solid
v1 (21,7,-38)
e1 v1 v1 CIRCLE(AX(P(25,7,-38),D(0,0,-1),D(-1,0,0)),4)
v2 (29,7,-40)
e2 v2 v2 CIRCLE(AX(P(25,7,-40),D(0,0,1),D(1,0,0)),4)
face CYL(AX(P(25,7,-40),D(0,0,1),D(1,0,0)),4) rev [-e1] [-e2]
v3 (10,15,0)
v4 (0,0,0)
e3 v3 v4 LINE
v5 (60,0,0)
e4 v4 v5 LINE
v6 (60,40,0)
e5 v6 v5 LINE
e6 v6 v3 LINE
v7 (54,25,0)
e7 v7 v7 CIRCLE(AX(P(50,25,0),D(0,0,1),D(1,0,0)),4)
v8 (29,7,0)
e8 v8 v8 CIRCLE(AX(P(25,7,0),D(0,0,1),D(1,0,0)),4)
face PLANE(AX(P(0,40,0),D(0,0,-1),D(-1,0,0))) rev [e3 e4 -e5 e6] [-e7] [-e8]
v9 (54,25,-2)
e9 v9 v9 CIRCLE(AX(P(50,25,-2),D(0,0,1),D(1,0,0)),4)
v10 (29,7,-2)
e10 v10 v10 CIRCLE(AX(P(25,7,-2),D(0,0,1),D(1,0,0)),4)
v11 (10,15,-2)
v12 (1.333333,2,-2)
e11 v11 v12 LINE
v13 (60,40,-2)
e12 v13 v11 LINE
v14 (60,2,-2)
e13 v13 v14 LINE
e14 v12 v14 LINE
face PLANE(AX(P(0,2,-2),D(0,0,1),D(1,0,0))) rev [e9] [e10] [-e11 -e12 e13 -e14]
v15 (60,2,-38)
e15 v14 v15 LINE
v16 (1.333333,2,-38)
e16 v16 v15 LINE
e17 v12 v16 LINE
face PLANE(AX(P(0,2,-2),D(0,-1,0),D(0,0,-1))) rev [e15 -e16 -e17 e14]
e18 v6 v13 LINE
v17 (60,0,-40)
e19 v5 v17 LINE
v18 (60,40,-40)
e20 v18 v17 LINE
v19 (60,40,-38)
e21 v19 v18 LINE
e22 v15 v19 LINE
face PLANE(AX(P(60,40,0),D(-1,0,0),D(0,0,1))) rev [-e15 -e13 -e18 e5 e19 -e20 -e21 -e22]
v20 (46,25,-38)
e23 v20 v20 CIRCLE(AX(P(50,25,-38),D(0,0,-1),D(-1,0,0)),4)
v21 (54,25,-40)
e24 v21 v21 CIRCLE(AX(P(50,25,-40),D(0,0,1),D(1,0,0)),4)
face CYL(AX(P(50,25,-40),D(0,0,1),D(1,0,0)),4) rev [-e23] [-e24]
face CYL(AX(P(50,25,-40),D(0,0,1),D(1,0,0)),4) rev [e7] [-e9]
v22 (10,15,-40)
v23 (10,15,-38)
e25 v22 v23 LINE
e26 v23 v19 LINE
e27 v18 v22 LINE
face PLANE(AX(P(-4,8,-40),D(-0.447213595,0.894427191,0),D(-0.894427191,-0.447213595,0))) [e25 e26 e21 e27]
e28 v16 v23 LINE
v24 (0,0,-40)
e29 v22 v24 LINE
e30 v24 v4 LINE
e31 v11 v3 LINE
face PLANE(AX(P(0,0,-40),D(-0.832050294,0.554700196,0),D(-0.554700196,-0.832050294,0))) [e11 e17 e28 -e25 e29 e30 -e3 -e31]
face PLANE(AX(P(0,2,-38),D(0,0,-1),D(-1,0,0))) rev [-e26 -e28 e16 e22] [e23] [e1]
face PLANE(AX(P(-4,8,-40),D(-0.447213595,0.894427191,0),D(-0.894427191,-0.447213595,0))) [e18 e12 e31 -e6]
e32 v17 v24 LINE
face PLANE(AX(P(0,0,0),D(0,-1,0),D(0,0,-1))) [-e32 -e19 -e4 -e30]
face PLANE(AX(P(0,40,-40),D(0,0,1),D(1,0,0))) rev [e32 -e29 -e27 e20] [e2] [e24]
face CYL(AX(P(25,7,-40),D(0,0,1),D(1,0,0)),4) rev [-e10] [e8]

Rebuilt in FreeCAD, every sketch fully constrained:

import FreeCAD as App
import Part
import Sketcher


def add_polygon(sketch, points):
    """Adds a closed chain of lines whose ends are joined by coincident constraints."""
    first, n = sketch.GeometryCount, len(points)
    for a, b in zip(points, points[1:] + points[:1]):
        sketch.addGeometry(Part.LineSegment(App.Vector(*a, 0), App.Vector(*b, 0)), False)
    for i in range(n):
        sketch.addConstraint(Sketcher.Constraint("Coincident", first + i, 2, first + (i + 1) % n, 1))

doc = App.newDocument("Part")
body = doc.addObject("PartDesign::Body", "Body")

# Sketch on XZ plane
sketch1 = doc.addObject("Sketcher::SketchObject", "Sketch")
body.addObject(sketch1)
sketch1.AttachmentSupport = (doc.XZ_Plane, [""])
sketch1.MapMode = "FlatFace"
add_polygon(sketch1, [(0, -40), (0, 0), (60, 0), (60, -40)])  # lines 0-3
sketch1.addConstraint(Sketcher.Constraint("Vertical", 0))
sketch1.addConstraint(Sketcher.Constraint("Horizontal", 1))
sketch1.addConstraint(Sketcher.Constraint("Vertical", 2))
sketch1.addConstraint(Sketcher.Constraint("Horizontal", 3))
sketch1.addConstraint(Sketcher.Constraint("Coincident", 0, 2, -1, 1))
sketch1.addConstraint(Sketcher.Constraint("DistanceX", 1, 1, 1, 2, 60.0))
sketch1.addConstraint(Sketcher.Constraint("DistanceY", 0, 1, 0, 2, 40.0))
pad1 = doc.addObject("PartDesign::Pad", "Pad")
body.addObject(pad1)
pad1.Profile = sketch1
pad1.Length = 40
pad1.Reversed = True

# Sketch on YZ plane
sketch2 = doc.addObject("Sketcher::SketchObject", "Sketch001")
body.addObject(sketch2)
sketch2.AttachmentSupport = (doc.YZ_Plane, [""])
sketch2.MapMode = "FlatFace"
sketch2.AttachmentOffset = App.Placement(App.Vector(0, 0, 60), App.Rotation())
add_polygon(sketch2, [(40, -2), (2, -2), (2, -38), (40, -38)])  # lines 0-3
sketch2.addConstraint(Sketcher.Constraint("Horizontal", 0))
sketch2.addConstraint(Sketcher.Constraint("Vertical", 1))
sketch2.addConstraint(Sketcher.Constraint("Horizontal", 2))
sketch2.addConstraint(Sketcher.Constraint("Vertical", 3))
sketch2.addConstraint(Sketcher.Constraint("DistanceX", 0, 2, 0, 1, 38.0))
sketch2.addConstraint(Sketcher.Constraint("DistanceY", 1, 2, 1, 1, 36.0))
sketch2.addConstraint(Sketcher.Constraint("DistanceX", -1, 1, 0, 2, 2.0))
sketch2.addConstraint(Sketcher.Constraint("DistanceY", 0, 2, -1, 1, 2.0))
pocket1 = doc.addObject("PartDesign::Pocket", "Pocket")
body.addObject(pocket1)
pocket1.Profile = sketch2
pocket1.Type = "ThroughAll"

# Sketch on XY plane
sketch3 = doc.addObject("Sketcher::SketchObject", "Sketch002")
body.addObject(sketch3)
sketch3.AttachmentSupport = (doc.XY_Plane, [""])
sketch3.MapMode = "FlatFace"
add_polygon(sketch3, [(0, 0), (10, 15), (60, 40), (0, 40)])  # lines 0-3
sketch3.addGeometry(Part.Circle(App.Vector(25, 7, 0), App.Vector(0, 0, 1), 4), False)  # 4
sketch3.addGeometry(Part.Circle(App.Vector(50, 25, 0), App.Vector(0, 0, 1), 4), False)  # 5
sketch3.addConstraint(Sketcher.Constraint("Horizontal", 2))
sketch3.addConstraint(Sketcher.Constraint("Vertical", 3))
sketch3.addConstraint(Sketcher.Constraint("Coincident", 3, 2, -1, 1))
sketch3.addConstraint(Sketcher.Constraint("Equal", 4, 5))
sketch3.addConstraint(Sketcher.Constraint("Diameter", 4, 8.0))
sketch3.addConstraint(Sketcher.Constraint("DistanceX", 2, 2, 2, 1, 60.0))
sketch3.addConstraint(Sketcher.Constraint("DistanceY", 3, 2, 3, 1, 40.0))
sketch3.addConstraint(Sketcher.Constraint("DistanceX", -1, 1, 4, 3, 25.0))
sketch3.addConstraint(Sketcher.Constraint("DistanceY", -1, 1, 4, 3, 7.0))
sketch3.addConstraint(Sketcher.Constraint("DistanceX", -1, 1, 5, 3, 50.0))
sketch3.addConstraint(Sketcher.Constraint("DistanceY", -1, 1, 5, 3, 25.0))
sketch3.addConstraint(Sketcher.Constraint("DistanceX", -1, 1, 0, 2, 10.0))
sketch3.addConstraint(Sketcher.Constraint("DistanceY", -1, 1, 0, 2, 15.0))
pocket2 = doc.addObject("PartDesign::Pocket", "Pocket001")
body.addObject(pocket2)
pocket2.Profile = sketch3
pocket2.Type = "ThroughAll"

doc.recompute()
